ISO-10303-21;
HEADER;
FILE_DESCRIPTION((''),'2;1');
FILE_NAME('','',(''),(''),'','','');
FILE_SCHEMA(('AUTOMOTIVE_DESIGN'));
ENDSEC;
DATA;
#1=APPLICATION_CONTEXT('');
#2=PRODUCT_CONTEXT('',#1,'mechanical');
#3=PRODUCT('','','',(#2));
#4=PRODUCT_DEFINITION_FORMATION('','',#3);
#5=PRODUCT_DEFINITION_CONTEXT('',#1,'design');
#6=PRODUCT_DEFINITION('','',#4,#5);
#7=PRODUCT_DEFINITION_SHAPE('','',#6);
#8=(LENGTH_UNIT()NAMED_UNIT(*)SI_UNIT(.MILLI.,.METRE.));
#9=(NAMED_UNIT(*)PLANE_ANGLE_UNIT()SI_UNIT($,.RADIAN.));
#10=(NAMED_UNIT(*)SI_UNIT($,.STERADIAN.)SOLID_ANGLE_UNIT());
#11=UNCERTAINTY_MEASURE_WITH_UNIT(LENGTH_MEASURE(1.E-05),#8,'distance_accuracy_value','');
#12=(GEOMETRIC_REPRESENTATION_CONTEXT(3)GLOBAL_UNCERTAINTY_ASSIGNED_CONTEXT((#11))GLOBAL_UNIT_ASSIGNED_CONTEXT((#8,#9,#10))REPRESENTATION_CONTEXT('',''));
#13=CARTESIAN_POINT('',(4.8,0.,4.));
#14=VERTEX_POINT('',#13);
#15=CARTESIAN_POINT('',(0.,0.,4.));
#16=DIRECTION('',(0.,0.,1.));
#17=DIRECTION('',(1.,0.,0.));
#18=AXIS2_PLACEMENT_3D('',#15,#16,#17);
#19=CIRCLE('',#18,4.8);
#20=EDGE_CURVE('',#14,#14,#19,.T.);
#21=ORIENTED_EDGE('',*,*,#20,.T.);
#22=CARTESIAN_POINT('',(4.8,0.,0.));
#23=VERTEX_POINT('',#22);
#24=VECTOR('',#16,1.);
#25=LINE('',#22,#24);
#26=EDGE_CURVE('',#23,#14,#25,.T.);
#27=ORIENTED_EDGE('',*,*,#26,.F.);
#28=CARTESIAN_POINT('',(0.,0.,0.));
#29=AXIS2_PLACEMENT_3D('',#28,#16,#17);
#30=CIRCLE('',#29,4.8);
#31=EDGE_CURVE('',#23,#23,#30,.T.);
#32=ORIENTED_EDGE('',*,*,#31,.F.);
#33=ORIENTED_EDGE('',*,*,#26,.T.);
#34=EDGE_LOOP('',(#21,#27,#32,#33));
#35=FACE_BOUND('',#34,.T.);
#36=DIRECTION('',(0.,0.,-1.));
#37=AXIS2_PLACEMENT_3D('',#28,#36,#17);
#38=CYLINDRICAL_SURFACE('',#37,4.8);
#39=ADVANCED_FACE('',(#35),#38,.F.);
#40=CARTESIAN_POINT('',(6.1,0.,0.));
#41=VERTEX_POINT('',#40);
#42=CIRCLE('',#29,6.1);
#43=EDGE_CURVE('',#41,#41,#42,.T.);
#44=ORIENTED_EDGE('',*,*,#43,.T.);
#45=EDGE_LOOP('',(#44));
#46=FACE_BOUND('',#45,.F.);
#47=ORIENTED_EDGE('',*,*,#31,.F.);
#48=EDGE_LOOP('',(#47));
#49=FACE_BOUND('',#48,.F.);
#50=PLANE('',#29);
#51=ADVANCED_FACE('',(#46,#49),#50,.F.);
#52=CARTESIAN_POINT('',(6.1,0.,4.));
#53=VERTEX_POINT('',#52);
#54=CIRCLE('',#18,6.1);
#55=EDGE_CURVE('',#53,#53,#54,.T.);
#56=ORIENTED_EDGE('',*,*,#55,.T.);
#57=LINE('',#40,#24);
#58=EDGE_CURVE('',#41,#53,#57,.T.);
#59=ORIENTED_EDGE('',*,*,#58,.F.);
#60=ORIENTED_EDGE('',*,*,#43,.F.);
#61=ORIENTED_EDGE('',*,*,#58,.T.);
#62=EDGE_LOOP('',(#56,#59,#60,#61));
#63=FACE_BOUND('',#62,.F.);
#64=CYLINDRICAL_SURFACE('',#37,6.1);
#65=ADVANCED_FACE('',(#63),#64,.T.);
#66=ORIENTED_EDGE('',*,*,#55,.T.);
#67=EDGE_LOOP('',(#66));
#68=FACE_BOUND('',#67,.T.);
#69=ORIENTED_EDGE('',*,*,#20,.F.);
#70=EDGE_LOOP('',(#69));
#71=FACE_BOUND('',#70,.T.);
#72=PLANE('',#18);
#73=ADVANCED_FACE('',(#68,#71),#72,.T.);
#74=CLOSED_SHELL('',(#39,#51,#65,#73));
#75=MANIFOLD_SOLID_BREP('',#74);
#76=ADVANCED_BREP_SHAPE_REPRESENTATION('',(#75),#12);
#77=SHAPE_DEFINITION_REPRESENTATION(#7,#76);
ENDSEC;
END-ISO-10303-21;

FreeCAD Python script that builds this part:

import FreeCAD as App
import Part
import Sketcher
from FreeCAD import Vector

doc = App.newDocument("Part")
params = doc.addObject("Spreadsheet::Sheet", "Params")
for row, (alias, value) in enumerate([
    ("sketch1_diameter", "12.2 mm"),
    ("sketch1_diameter2", "9.6 mm"),
    ("pad1_length", "4 mm"),
], start=1):
    params.set(f"A{row}", alias)
    params.set(f"B{row}", "=" + value)
    params.setAlias(f"B{row}", alias)

body = doc.addObject("PartDesign::Body", "Body")

# Sketch on XY plane
sketch1 = body.newObject("Sketcher::SketchObject", "Sketch")
sketch1.AttachmentSupport = (doc.getObject("XY_Plane"), [""])
sketch1.MapMode = "FlatFace"
sketch1.addGeometry([
    Part.Circle(Vector(0, 0, 0), Vector(0, 0, 1), 6.1),
    Part.Circle(Vector(0, 0, 0), Vector(0, 0, 1), 4.8),
], False)
sketch1.addConstraint([
    Sketcher.Constraint("Coincident", 0, 3, -1, 1),
    Sketcher.Constraint("Coincident", 1, 3, -1, 1),
    Sketcher.Constraint("Diameter", 0, 12.2),
    Sketcher.Constraint("Diameter", 1, 9.6),
])
sketch1.setExpression("Constraints[2]", "Params.sketch1_diameter")
sketch1.setExpression("Constraints[3]", "Params.sketch1_diameter2")
pad1 = body.newObject("PartDesign::Pad", "Pad")
pad1.Profile = sketch1
pad1.setExpression("Length", "Params.pad1_length")

doc.recompute()
